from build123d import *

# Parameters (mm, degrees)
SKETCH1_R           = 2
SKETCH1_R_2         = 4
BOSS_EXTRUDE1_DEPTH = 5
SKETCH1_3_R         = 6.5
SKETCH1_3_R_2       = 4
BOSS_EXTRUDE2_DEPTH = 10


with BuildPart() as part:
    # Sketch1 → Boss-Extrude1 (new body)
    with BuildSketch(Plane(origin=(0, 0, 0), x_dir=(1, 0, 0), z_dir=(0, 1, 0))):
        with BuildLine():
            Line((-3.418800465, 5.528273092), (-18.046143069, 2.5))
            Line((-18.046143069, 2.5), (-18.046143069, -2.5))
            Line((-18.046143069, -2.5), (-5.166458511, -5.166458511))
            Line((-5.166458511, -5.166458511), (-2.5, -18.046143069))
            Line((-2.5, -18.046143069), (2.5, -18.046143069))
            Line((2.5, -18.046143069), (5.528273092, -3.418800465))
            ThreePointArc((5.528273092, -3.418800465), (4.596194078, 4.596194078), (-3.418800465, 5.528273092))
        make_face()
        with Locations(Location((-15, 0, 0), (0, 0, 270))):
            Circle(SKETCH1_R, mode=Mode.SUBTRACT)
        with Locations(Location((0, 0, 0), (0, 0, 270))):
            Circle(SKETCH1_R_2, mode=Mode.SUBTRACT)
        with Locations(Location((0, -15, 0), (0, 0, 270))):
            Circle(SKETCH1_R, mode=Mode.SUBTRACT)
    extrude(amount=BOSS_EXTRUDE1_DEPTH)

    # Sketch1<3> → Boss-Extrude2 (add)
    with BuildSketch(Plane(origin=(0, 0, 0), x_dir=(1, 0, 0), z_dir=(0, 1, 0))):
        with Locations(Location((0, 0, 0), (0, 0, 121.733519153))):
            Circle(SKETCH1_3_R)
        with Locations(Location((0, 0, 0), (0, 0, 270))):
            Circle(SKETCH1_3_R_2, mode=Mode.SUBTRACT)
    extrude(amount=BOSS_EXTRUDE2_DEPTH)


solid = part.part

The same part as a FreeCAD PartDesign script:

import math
import FreeCAD as App
import Part
import Sketcher
from FreeCAD import Vector
Q = App.Units.Quantity

doc = App.newDocument("Part")
body = doc.addObject("PartDesign::Body", "Body")

sketch1 = body.newObject("Sketcher::SketchObject", "Sketch")
sketch1.AttachmentSupport = (doc.getObject("XZ_Plane"), [""])
sketch1.MapMode = "FlatFace"
sketch1.addGeometry([
    Part.LineSegment(Vector(-3.4, -5.5, 0), Vector(-18, -2.5, 0)),
    Part.LineSegment(Vector(-18, -2.5, 0), Vector(-18, 2.5, 0)),
    Part.LineSegment(Vector(-18, 2.5, 0), Vector(-5.2, 5.2, 0)),
    Part.LineSegment(Vector(-5.2, 5.2, 0), Vector(-2.5, 18, 0)),
    Part.LineSegment(Vector(-2.5, 18, 0), Vector(2.5, 18, 0)),
    Part.LineSegment(Vector(2.5, 18, 0), Vector(5.5, 3.4, 0)),
    Part.ArcOfCircle(Part.Circle(Vector(0, 0, 0), Vector(0, 0, 1), 6.5), math.radians(-122), math.radians(32)),
    Part.Circle(Vector(0, 15, 0), Vector(0, 0, 1), 2),
    Part.Circle(Vector(-15, 0, 0), Vector(0, 0, 1), 2),
    Part.Circle(Vector(0, 0, 0), Vector(0, 0, 1), 4),
], False)
sketch1.addConstraint([
    Sketcher.Constraint("Coincident", 0, 2, 1, 1),
    Sketcher.Constraint("Coincident", 1, 2, 2, 1),
    Sketcher.Constraint("Coincident", 2, 2, 3, 1),
    Sketcher.Constraint("Coincident", 3, 2, 4, 1),
    Sketcher.Constraint("Coincident", 4, 2, 5, 1),
    Sketcher.Constraint("Coincident", 5, 2, 6, 2),
    Sketcher.Constraint("Coincident", 6, 1, 0, 1),
    Sketcher.Constraint("Vertical", 1),
    Sketcher.Constraint("Horizontal", 4),
    Sketcher.Constraint("Coincident", 6, 3, -1, 1),
    Sketcher.Constraint("Coincident", 9, 3, -1, 1),
    Sketcher.Constraint("Equal", 7, 8),
    Sketcher.Constraint("PointOnObject", 7, 3, -2),
    Sketcher.Constraint("PointOnObject", 8, 3, -1),
    Sketcher.Constraint("Perpendicular", 0, 3),
    Sketcher.Constraint("Perpendicular", 2, 5),
    Sketcher.Constraint("Equal", 4, 1),
    Sketcher.Constraint("Equal", 2, 3),
    Sketcher.Constraint("Equal", 0, 5),
    Sketcher.Constraint("Diameter", 7, Q("4 mm")),
    Sketcher.Constraint("Diameter", 9, Q("8 mm")),
    Sketcher.Constraint("Radius", 6, Q("6.5 mm")),
    Sketcher.Constraint("DistanceX", 4, 1, 4, 2, Q("5 mm")),
    Sketcher.Constraint("DistanceY", -1, 1, 7, 3, Q("15 mm")),
    Sketcher.Constraint("DistanceX", 8, 3, -1, 1, Q("15 mm")),
    Sketcher.Constraint("DistanceY", 0, 2, -1, 1, Q("2.5 mm")),
    Sketcher.Constraint("DistanceX", 3, 2, -1, 1, Q("2.5 mm")),
    Sketcher.Constraint("DistanceY", -1, 1, 5, 2, Q("3.4188 mm")),
    Sketcher.Constraint("DistanceX", 2, 2, -1, 1, Q("5.166459 mm")),
])
pad1 = body.newObject("PartDesign::Pad", "Pad")
pad1.Profile = sketch1
pad1.Length = 5
pad1.Reversed = True

sketch2 = body.newObject("Sketcher::SketchObject", "Sketch001")
sketch2.AttachmentSupport = (doc.getObject("XZ_Plane"), [""])
sketch2.MapMode = "FlatFace"
sketch2.addGeometry([
    Part.Circle(Vector(0, 0, 0), Vector(0, 0, 1), 6.5),
    Part.Circle(Vector(0, 0, 0), Vector(0, 0, 1), 4),
], False)
sketch2.addConstraint([
    Sketcher.Constraint("Coincident", 0, 3, -1, 1),
    Sketcher.Constraint("Coincident", 1, 3, -1, 1),
    Sketcher.Constraint("Diameter", 0, Q("13 mm")),
    Sketcher.Constraint("Diameter", 1, Q("8 mm")),
])
pad2 = body.newObject("PartDesign::Pad", "Pad001")
pad2.Profile = sketch2
pad2.Length = 10
pad2.Reversed = True

doc.recompute()
